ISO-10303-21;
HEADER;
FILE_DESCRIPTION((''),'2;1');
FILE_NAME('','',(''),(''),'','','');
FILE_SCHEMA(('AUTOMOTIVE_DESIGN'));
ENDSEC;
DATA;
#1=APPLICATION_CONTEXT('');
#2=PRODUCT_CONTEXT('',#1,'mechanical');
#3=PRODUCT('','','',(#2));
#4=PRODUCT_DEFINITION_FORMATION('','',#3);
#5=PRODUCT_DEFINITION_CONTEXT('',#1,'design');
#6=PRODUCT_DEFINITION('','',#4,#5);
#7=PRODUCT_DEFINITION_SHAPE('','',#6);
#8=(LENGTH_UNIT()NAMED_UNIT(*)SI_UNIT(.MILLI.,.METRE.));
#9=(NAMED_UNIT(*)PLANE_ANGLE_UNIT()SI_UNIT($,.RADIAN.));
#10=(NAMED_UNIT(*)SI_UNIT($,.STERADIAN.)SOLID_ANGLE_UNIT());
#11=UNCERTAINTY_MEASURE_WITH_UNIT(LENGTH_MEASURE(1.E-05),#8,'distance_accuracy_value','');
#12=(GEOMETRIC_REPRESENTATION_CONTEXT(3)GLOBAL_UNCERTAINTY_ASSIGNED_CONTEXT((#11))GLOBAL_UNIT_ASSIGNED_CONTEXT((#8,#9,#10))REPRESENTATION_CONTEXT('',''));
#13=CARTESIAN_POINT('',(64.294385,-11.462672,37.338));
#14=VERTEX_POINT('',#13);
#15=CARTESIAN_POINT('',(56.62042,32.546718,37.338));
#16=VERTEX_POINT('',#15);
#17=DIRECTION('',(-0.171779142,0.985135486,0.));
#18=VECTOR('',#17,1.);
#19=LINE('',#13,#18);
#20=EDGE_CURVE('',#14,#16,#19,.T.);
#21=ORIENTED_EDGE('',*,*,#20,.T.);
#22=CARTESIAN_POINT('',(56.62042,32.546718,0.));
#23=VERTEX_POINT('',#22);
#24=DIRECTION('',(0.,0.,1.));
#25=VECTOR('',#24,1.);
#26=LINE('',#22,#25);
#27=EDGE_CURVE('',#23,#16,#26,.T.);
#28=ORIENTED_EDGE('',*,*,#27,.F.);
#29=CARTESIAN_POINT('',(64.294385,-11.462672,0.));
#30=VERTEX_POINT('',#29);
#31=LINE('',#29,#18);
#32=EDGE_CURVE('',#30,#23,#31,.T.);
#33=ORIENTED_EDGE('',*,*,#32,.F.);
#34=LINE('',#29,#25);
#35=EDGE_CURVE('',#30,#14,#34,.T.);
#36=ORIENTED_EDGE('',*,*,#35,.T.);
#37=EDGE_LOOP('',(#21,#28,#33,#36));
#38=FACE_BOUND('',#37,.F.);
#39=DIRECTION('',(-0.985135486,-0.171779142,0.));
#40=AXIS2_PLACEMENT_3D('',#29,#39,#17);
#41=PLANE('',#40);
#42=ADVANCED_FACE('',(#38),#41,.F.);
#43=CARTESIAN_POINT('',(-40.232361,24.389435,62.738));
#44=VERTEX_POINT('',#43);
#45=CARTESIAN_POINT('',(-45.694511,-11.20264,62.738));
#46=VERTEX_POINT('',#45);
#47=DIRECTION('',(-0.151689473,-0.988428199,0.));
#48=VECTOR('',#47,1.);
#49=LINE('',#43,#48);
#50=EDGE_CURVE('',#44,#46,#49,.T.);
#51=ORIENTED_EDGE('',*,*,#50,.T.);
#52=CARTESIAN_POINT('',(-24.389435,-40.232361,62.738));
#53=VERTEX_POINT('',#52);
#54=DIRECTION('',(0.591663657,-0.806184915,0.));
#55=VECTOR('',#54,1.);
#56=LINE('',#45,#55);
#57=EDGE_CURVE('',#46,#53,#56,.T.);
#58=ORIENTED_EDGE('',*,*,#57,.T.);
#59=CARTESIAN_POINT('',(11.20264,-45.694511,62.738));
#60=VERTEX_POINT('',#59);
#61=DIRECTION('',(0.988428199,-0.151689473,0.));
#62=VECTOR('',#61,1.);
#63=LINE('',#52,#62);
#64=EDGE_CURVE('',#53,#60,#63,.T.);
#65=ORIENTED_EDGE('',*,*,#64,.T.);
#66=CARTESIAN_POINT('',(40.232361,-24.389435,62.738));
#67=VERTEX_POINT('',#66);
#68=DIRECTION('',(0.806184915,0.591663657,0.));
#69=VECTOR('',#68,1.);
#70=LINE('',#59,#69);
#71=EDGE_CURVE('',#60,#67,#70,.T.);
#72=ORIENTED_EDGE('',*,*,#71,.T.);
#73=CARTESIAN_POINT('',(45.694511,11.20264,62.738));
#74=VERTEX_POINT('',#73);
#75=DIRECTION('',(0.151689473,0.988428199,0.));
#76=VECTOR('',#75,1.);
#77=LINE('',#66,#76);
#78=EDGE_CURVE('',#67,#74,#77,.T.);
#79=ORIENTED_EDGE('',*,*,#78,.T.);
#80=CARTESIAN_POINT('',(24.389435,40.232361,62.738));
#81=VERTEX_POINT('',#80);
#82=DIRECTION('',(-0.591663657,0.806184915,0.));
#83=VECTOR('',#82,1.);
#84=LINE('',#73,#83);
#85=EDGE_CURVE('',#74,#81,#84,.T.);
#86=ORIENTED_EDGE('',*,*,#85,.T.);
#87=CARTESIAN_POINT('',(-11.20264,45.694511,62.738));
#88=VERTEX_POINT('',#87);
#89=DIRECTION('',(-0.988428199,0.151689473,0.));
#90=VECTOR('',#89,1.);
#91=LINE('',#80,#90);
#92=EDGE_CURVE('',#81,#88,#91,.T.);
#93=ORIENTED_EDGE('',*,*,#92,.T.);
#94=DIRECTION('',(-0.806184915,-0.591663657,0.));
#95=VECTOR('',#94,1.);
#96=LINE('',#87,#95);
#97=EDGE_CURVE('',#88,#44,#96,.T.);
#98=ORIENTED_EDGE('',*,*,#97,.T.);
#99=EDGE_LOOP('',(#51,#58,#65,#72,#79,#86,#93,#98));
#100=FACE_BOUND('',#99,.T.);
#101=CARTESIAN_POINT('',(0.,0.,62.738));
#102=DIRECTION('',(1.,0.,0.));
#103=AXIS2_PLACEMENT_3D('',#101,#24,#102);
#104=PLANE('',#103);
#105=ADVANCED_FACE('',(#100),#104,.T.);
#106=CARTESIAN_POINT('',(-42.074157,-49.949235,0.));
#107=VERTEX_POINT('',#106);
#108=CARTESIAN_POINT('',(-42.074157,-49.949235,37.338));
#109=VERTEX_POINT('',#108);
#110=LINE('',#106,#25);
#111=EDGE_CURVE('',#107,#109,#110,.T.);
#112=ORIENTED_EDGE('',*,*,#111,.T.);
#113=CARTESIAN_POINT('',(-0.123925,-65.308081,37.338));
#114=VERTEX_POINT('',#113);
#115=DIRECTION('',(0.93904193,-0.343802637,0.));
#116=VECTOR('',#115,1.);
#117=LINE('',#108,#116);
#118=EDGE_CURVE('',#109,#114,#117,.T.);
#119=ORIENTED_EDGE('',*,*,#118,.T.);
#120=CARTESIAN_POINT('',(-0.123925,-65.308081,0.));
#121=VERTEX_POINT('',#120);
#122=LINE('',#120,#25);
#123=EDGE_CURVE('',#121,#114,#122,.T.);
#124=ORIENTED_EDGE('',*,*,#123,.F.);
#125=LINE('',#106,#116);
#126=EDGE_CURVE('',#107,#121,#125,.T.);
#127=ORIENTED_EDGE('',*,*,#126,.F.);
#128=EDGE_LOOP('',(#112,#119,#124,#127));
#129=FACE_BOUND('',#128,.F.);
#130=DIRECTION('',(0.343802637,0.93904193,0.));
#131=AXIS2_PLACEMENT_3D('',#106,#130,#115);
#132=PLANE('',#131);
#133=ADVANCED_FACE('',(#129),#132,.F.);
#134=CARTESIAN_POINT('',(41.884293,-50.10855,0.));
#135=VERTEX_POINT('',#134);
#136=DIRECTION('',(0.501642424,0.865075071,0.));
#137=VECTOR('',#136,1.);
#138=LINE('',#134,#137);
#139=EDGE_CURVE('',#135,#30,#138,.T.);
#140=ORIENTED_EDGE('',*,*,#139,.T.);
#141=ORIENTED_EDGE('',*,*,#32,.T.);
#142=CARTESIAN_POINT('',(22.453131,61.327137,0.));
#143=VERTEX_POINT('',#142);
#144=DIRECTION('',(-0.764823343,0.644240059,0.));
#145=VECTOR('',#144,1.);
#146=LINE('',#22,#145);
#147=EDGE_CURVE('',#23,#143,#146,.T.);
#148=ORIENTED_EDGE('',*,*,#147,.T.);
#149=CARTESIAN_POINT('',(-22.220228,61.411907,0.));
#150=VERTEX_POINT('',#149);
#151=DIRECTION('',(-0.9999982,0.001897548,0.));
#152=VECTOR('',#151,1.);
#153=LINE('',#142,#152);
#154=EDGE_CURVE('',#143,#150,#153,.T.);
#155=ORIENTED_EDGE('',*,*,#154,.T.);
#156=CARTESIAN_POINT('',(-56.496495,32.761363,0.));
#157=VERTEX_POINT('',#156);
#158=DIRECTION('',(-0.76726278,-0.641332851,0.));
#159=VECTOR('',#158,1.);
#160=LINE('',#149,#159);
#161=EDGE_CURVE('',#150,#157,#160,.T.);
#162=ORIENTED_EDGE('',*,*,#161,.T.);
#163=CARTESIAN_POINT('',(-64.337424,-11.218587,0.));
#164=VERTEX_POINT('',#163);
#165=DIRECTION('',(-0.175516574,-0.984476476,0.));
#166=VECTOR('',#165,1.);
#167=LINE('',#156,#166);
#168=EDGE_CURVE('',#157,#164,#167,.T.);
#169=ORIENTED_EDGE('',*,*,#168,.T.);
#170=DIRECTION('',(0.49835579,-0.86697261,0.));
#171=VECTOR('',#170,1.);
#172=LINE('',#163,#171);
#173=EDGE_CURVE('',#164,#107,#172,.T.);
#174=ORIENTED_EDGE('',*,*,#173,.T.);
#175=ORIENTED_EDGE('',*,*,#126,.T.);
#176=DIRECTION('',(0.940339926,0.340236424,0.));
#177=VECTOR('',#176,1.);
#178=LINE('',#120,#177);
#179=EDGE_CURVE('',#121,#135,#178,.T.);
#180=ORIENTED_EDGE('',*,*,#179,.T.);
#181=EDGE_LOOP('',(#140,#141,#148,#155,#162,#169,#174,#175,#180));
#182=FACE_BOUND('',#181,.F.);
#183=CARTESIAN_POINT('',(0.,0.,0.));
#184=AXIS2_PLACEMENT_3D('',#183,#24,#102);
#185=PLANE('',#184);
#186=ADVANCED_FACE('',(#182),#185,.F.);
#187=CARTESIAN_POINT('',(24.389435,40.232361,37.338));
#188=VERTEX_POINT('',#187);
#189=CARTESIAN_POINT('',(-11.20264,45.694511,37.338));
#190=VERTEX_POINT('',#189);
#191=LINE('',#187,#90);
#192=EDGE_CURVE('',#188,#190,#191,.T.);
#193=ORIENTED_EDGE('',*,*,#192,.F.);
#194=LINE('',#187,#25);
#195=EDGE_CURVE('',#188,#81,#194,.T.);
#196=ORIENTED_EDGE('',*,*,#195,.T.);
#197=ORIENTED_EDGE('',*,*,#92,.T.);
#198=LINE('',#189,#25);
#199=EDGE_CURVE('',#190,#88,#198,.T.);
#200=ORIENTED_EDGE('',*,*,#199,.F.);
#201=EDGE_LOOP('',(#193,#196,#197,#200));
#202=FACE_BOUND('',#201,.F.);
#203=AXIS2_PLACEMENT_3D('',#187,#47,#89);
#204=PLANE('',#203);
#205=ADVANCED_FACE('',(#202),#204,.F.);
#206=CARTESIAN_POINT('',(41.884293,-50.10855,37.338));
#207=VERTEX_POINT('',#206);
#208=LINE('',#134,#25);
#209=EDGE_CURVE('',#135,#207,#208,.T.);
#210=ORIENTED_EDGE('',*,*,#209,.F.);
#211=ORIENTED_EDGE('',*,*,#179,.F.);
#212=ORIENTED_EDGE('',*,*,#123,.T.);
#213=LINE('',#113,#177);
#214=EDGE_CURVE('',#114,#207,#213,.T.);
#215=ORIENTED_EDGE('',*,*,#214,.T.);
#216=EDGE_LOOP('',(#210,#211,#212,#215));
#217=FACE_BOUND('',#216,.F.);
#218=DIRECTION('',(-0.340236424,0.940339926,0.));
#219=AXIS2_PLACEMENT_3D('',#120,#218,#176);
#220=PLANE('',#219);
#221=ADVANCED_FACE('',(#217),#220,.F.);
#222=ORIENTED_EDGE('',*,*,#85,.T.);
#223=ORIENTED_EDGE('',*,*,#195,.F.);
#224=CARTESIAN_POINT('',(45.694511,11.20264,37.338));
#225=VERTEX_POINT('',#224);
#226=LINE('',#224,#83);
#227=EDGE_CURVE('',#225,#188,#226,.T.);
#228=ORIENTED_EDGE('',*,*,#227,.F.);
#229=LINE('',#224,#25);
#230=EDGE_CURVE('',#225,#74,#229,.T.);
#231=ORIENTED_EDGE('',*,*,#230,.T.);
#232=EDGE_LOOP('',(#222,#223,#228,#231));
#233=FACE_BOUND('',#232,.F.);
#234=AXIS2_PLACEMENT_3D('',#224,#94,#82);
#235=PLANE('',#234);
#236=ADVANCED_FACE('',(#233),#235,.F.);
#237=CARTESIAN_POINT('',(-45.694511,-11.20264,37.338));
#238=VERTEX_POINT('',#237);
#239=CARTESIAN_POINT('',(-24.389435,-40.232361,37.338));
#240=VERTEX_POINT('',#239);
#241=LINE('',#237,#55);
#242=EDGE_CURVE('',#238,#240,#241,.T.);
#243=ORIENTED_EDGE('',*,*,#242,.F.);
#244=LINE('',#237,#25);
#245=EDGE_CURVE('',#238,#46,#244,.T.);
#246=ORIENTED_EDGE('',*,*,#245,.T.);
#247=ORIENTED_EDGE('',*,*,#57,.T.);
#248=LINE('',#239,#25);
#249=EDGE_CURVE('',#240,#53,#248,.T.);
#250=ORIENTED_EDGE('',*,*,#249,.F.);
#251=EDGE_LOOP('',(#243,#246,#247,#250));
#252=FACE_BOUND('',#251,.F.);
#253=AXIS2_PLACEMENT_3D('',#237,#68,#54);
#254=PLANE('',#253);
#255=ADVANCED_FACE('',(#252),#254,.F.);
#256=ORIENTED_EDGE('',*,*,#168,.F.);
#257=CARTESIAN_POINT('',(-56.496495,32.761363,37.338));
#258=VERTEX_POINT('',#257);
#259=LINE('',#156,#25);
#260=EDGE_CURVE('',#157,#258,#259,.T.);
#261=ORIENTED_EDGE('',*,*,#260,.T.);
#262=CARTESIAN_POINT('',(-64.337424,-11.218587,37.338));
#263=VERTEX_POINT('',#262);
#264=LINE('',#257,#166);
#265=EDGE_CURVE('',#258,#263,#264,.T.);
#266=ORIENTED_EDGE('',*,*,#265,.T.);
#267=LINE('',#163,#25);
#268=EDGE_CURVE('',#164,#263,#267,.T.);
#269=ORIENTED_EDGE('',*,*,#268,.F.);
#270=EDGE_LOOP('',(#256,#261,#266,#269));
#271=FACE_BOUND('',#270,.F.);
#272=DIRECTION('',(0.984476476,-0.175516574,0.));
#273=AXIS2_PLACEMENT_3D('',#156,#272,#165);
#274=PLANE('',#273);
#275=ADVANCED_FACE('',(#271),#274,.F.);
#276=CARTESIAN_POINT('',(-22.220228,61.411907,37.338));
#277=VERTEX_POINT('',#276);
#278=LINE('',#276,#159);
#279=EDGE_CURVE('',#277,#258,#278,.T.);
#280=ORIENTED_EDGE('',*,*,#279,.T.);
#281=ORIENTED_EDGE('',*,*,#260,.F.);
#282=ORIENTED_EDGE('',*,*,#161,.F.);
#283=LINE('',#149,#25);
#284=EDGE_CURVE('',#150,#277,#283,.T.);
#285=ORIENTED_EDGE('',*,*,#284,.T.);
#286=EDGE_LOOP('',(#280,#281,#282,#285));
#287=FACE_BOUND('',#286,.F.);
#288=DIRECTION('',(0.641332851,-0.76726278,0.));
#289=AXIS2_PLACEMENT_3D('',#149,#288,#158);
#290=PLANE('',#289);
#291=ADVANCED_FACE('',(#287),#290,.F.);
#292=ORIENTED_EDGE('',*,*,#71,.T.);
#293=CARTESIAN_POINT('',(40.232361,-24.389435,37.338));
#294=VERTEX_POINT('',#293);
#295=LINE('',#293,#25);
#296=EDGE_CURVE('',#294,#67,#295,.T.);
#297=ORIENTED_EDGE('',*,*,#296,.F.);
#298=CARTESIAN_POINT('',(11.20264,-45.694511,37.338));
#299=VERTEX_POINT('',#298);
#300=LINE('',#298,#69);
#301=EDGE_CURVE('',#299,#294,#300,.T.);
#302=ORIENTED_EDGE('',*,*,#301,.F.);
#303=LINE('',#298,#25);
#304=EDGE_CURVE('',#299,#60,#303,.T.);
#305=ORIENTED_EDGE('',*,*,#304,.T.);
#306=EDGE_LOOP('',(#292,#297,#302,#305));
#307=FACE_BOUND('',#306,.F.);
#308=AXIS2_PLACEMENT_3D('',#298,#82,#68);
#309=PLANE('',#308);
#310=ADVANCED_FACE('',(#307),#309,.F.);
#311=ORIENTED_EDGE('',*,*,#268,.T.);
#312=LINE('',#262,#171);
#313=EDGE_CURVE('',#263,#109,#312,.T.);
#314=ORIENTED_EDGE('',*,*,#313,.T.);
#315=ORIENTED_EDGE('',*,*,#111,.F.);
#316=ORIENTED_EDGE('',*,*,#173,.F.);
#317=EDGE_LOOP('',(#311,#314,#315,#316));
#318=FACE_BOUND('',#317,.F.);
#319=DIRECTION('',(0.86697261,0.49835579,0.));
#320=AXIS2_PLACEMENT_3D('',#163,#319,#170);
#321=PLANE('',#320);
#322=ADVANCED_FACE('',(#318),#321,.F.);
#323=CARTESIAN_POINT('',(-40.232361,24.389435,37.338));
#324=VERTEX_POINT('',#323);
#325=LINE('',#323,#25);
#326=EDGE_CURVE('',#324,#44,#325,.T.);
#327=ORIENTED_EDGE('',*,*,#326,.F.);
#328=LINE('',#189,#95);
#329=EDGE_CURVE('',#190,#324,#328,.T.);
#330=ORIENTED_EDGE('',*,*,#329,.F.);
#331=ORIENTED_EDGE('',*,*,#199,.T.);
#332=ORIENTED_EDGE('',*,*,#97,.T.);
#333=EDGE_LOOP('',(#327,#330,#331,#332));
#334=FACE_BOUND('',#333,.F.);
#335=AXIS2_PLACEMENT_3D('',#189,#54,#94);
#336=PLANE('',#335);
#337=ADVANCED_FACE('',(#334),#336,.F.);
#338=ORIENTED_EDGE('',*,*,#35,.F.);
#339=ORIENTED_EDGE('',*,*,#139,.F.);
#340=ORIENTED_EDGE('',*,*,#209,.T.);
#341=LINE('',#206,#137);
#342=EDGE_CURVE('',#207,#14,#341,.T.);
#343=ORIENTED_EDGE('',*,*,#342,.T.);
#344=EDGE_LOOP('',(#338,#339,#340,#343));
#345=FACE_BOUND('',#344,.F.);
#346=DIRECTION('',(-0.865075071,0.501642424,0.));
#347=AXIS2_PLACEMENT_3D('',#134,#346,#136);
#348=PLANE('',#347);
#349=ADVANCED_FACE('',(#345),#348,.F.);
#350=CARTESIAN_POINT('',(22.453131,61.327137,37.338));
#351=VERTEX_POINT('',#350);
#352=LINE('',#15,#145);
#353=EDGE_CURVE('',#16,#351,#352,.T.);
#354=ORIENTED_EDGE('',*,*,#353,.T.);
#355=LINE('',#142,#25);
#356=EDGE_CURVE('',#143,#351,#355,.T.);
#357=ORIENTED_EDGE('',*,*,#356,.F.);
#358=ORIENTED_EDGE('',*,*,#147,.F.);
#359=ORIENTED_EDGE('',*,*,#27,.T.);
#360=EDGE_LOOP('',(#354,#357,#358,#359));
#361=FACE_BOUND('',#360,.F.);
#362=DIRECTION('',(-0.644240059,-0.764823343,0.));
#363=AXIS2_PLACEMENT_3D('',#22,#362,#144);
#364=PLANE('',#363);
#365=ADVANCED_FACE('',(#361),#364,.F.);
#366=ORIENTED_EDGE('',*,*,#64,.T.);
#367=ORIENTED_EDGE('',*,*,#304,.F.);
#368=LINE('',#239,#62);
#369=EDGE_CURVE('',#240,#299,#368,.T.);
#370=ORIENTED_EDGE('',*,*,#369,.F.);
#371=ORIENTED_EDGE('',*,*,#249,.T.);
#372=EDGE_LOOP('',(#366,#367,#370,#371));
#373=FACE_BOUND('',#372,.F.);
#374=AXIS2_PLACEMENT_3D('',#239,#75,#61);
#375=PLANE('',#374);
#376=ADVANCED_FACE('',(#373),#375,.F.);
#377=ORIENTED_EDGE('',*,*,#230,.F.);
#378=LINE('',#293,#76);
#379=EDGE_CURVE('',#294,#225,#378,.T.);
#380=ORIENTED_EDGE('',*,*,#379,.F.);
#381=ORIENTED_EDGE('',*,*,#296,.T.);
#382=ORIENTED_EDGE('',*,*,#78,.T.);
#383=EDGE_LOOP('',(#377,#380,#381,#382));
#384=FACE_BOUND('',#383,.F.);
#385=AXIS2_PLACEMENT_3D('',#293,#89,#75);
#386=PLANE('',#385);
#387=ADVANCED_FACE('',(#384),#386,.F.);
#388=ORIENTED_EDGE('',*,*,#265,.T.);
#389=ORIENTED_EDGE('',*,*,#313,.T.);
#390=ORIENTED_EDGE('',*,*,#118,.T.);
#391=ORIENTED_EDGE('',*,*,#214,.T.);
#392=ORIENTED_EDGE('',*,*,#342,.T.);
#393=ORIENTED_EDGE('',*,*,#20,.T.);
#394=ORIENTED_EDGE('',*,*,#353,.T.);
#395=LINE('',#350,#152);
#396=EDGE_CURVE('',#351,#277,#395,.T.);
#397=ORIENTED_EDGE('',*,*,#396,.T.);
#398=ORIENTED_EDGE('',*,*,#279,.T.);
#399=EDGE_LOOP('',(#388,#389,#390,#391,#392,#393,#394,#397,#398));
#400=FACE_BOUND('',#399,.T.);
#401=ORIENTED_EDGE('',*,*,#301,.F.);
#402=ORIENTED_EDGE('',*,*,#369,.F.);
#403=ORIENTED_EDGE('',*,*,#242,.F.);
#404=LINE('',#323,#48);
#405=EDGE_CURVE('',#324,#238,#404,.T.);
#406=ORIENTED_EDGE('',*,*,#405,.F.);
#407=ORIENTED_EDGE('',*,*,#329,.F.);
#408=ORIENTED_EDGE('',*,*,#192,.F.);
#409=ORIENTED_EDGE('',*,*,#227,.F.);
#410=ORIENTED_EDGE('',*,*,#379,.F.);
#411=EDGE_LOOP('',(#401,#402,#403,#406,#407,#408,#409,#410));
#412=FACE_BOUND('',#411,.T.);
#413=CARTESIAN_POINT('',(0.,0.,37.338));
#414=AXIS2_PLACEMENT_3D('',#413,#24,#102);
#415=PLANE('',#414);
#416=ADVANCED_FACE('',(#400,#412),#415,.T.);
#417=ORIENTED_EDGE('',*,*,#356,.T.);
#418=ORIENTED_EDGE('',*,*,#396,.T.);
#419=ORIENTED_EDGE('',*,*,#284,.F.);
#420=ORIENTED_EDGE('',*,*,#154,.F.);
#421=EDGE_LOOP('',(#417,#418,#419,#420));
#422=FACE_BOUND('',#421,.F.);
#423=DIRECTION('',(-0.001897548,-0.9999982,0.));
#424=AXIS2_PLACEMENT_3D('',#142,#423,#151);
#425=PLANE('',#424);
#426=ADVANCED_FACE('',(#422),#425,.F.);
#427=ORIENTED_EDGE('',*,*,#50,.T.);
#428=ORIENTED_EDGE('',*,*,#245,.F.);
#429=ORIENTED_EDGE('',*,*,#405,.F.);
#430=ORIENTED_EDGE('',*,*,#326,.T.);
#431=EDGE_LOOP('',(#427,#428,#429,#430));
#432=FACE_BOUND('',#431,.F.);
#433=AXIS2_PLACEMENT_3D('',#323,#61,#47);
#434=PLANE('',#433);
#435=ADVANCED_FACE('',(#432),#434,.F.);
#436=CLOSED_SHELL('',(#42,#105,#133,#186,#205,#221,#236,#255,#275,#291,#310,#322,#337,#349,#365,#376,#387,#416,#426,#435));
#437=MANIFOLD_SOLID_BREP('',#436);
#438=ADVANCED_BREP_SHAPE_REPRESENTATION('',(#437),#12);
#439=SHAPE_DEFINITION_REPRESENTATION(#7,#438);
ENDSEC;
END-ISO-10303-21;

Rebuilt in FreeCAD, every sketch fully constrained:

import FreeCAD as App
import Part
import Sketcher
from FreeCAD import Vector
Q = App.Units.Quantity

doc = App.newDocument("Part")
body = doc.addObject("PartDesign::Body", "Body")

sketch1 = body.newObject("Sketcher::SketchObject", "Sketch")
sketch1.AttachmentSupport = (doc.getObject("XY_Plane"), [""])
sketch1.MapMode = "FlatFace"
sketch1.addGeometry([
    Part.LineSegment(Vector(42, -50, 0), Vector(64, -11, 0)),
    Part.LineSegment(Vector(64, -11, 0), Vector(57, 33, 0)),
    Part.LineSegment(Vector(57, 33, 0), Vector(22, 61, 0)),
    Part.LineSegment(Vector(22, 61, 0), Vector(-22, 61, 0)),
    Part.LineSegment(Vector(-22, 61, 0), Vector(-56, 33, 0)),
    Part.LineSegment(Vector(-56, 33, 0), Vector(-64, -11, 0)),
    Part.LineSegment(Vector(-64, -11, 0), Vector(-42, -50, 0)),
    Part.LineSegment(Vector(-42, -50, 0), Vector(0, -65, 0)),
    Part.LineSegment(Vector(0, -65, 0), Vector(42, -50, 0)),
], False)
sketch1.addConstraint([
    Sketcher.Constraint("Coincident", 0, 2, 1, 1),
    Sketcher.Constraint("Coincident", 1, 2, 2, 1),
    Sketcher.Constraint("Coincident", 2, 2, 3, 1),
    Sketcher.Constraint("Coincident", 3, 2, 4, 1),
    Sketcher.Constraint("Coincident", 4, 2, 5, 1),
    Sketcher.Constraint("Coincident", 5, 2, 6, 1),
    Sketcher.Constraint("Coincident", 6, 2, 7, 1),
    Sketcher.Constraint("Coincident", 7, 2, 8, 1),
    Sketcher.Constraint("Coincident", 8, 2, 0, 1),
    Sketcher.Constraint("Equal", 0, 1),
    Sketcher.Constraint("Equal", 1, 2),
    Sketcher.Constraint("Equal", 2, 3),
    Sketcher.Constraint("Equal", 3, 4),
    Sketcher.Constraint("Equal", 4, 5),
    Sketcher.Constraint("Equal", 5, 6),
    Sketcher.Constraint("Equal", 6, 7),
    Sketcher.Constraint("Equal", 7, 8),
    Sketcher.Constraint("DistanceY", 6, 2, 4, 2, 82.710598),
    Sketcher.Constraint("DistanceX", 5, 2, 7, 2, 64.213499),
    Sketcher.Constraint("DistanceY", 7, 2, 1, 2, 97.854799),
    Sketcher.Constraint("Distance", 0, 44.673439),
    Sketcher.Constraint("DistanceX", -1, 1, 1, 2, 56.62042),
    Sketcher.Constraint("DistanceX", -1, 1, 2, 2, 22.453131),
    Sketcher.Constraint("DistanceY", 7, 2, -1, 1, 65.308081),
    Sketcher.Constraint("DistanceY", 8, 2, -1, 1, 50.10855),
    Sketcher.Constraint("DistanceY", 0, 2, 1, 2, 44.00939),
    Sketcher.Constraint("DistanceY", 2, 2, 3, 2, 0.08477),
])
pad1 = body.newObject("PartDesign::Pad", "Pad")
pad1.Profile = sketch1
pad1.Length = Q("1.47 in")

sketch2 = body.newObject("Sketcher::SketchObject", "Sketch001")
sketch2.AttachmentSupport = (doc.getObject("XY_Plane"), [""])
sketch2.MapMode = "FlatFace"
sketch2.AttachmentOffset = App.Placement(Vector(0, 0, 1.47 * 25.4), App.Rotation())
sketch2.addGeometry([
    Part.LineSegment(Vector(-11, 46, 0), Vector(-40, 24, 0)),
    Part.LineSegment(Vector(-40, 24, 0), Vector(-46, -11, 0)),
    Part.LineSegment(Vector(-46, -11, 0), Vector(-24, -40, 0)),
    Part.LineSegment(Vector(-24, -40, 0), Vector(11, -46, 0)),
    Part.LineSegment(Vector(11, -46, 0), Vector(40, -24, 0)),
    Part.LineSegment(Vector(40, -24, 0), Vector(46, 11, 0)),
    Part.LineSegment(Vector(46, 11, 0), Vector(24, 40, 0)),
    Part.LineSegment(Vector(24, 40, 0), Vector(-11, 46, 0)),
], False)
sketch2.addConstraint([
    Sketcher.Constraint("Coincident", 0, 2, 1, 1),
    Sketcher.Constraint("Coincident", 1, 2, 2, 1),
    Sketcher.Constraint("Coincident", 2, 2, 3, 1),
    Sketcher.Constraint("Coincident", 3, 2, 4, 1),
    Sketcher.Constraint("Coincident", 4, 2, 5, 1),
    Sketcher.Constraint("Coincident", 5, 2, 6, 1),
    Sketcher.Constraint("Coincident", 6, 2, 7, 1),
    Sketcher.Constraint("Coincident", 7, 2, 0, 1),
    Sketcher.Constraint("Symmetric", 0, 2, 4, 2, -1, 1),
    Sketcher.Constraint("Symmetric", 1, 2, 5, 2, -1, 1),
    Sketcher.Constraint("Symmetric", 2, 2, 6, 2, -1, 1),
    Sketcher.Constraint("Symmetric", 3, 2, 7, 2, -1, 1),
    Sketcher.Constraint("Perpendicular", 0, 2),
    Sketcher.Constraint("Perpendicular", 1, 3),
    Sketcher.Constraint("Equal", 0, 1),
    Sketcher.Constraint("Equal", 1, 2),
    Sketcher.Constraint("Equal", 2, 3),
    Sketcher.Constraint("DistanceX", 0, 2, 3, 2, Q("2.025 in")),
    Sketcher.Constraint("Distance", 1, 36.008761),
    Sketcher.Constraint("DistanceX", 0, 2, -1, 1, 40.232361),
])
pad2 = body.newObject("PartDesign::Pad", "Pad001")
pad2.Profile = sketch2
pad2.Length = Q("1 in")

doc.recompute()
